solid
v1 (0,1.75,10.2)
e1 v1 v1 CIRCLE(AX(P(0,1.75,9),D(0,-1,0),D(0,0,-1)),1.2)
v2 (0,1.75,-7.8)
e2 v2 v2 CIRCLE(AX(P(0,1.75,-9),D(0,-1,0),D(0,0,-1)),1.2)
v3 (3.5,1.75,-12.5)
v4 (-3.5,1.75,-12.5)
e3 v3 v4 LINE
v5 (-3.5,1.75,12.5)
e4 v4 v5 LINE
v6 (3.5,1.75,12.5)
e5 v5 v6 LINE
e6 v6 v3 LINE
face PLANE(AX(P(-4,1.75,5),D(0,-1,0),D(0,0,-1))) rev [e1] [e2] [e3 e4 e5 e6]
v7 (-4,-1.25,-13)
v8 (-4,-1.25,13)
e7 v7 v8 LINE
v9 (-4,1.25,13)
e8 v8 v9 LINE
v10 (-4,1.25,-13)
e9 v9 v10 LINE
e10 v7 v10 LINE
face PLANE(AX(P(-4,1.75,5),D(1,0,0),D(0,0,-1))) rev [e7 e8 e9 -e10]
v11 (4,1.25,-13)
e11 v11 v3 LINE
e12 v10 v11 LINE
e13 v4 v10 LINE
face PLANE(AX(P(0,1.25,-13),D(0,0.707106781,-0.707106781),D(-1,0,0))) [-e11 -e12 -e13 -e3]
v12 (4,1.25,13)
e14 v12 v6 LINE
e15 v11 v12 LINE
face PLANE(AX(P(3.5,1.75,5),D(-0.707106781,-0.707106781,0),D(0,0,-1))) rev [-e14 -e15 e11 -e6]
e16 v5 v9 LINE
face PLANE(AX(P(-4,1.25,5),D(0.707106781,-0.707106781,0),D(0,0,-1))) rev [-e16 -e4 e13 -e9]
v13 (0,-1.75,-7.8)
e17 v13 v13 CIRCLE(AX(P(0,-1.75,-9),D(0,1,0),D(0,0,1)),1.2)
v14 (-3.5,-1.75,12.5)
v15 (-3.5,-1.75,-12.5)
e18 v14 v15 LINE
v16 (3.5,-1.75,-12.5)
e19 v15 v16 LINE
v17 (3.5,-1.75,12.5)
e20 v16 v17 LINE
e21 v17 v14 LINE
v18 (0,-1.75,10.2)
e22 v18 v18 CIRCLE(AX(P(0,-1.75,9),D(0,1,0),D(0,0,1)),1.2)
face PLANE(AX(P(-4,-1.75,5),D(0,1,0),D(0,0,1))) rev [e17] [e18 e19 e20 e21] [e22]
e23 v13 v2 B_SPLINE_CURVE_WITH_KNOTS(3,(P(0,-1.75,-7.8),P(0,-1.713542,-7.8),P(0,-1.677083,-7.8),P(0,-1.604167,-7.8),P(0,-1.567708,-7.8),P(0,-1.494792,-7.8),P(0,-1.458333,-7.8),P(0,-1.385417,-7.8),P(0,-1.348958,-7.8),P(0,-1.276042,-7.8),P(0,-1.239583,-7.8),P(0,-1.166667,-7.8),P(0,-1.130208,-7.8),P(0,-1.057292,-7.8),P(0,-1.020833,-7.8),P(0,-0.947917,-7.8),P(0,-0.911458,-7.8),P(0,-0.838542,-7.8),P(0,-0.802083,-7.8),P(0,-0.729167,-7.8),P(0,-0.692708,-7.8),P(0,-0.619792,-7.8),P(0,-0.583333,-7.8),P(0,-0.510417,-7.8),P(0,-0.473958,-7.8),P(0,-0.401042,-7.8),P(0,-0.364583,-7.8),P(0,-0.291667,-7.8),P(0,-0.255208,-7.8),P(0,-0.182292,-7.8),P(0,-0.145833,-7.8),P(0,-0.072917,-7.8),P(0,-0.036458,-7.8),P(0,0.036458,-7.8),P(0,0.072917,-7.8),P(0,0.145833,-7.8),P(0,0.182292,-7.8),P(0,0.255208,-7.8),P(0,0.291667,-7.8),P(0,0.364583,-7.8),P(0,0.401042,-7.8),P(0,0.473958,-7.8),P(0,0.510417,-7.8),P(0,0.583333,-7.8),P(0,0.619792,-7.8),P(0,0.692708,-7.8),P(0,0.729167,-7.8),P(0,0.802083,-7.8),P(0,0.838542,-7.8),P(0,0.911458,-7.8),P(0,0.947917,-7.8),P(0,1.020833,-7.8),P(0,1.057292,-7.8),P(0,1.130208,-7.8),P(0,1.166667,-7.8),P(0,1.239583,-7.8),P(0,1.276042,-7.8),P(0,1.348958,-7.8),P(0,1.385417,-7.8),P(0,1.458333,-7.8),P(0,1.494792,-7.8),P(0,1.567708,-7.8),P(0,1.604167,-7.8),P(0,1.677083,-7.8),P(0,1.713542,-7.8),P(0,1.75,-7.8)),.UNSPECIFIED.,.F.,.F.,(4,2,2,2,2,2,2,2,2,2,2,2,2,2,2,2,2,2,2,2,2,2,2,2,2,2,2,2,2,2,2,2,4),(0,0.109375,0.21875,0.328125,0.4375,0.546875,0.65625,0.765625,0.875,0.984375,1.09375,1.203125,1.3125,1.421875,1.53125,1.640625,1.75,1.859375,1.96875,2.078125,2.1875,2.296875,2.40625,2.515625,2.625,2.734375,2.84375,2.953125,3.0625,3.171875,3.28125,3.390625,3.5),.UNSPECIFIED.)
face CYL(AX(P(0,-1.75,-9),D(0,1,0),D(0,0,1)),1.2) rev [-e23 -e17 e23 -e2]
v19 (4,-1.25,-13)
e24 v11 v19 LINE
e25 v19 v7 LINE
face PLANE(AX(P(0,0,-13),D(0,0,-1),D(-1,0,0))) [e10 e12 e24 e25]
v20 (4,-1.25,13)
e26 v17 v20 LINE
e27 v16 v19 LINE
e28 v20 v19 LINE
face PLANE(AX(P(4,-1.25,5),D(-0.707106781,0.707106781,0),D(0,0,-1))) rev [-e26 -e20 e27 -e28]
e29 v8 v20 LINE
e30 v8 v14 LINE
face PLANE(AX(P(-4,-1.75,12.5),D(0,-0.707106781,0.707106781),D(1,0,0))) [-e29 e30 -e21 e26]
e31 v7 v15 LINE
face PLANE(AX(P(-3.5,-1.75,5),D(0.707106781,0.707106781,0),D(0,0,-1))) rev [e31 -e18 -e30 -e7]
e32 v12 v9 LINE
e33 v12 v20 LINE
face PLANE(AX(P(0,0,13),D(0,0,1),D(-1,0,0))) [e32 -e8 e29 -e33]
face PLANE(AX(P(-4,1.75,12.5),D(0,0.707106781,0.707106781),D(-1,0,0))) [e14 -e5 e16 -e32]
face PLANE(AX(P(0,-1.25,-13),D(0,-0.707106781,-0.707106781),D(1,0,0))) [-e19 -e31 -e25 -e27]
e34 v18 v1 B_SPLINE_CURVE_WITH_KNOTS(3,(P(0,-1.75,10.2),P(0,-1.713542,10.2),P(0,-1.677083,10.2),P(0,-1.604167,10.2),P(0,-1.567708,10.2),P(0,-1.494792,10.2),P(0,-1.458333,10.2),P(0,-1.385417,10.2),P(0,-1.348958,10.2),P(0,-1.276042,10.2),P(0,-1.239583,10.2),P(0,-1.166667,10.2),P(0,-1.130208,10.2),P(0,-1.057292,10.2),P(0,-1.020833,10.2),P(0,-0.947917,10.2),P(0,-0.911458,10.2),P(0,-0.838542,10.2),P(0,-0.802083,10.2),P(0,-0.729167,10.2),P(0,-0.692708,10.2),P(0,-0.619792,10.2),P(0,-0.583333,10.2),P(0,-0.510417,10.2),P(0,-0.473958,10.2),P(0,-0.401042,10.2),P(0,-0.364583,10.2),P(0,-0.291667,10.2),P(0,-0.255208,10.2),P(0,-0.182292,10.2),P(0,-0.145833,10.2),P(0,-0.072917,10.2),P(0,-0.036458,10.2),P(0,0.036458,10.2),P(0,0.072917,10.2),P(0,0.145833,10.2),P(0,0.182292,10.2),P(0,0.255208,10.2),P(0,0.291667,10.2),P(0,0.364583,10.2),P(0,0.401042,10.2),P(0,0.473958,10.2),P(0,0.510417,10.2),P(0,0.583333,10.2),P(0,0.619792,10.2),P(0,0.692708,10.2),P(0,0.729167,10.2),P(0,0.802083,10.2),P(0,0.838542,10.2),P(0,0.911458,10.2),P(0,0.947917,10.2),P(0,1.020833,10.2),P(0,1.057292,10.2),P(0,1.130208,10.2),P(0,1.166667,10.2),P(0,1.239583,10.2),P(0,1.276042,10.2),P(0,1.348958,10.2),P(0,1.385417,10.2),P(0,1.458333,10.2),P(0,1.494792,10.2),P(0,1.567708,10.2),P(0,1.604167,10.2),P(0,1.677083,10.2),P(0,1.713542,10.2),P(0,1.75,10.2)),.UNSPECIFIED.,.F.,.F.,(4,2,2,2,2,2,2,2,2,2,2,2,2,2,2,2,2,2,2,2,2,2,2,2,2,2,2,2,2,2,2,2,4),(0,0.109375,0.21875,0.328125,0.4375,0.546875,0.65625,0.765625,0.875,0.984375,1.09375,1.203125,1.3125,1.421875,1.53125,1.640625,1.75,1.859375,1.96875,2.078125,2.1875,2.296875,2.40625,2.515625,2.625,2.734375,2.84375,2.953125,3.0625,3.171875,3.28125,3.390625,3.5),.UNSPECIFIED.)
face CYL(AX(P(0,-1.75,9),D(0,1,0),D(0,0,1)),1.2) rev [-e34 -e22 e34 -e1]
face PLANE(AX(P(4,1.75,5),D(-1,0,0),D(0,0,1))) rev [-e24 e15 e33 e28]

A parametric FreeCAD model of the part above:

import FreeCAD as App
import Part
import Sketcher
from FreeCAD import Vector
Q = App.Units.Quantity


def edges_at(feature, points):
    """Names of the edges that pass closest to the given points."""
    edges = feature.Shape.Edges
    near = lambda p: min(range(len(edges)), key=lambda i: edges[i].distToShape(Part.Vertex(*p))[0])
    return sorted({f"Edge{near(p) + 1}" for p in points})


def add_polygon(sketch, points):
    """Adds a closed chain of lines whose ends are joined by coincident constraints."""
    first, n = sketch.GeometryCount, len(points)
    for a, b in zip(points, points[1:] + points[:1]):
        sketch.addGeometry(Part.LineSegment(App.Vector(*a, 0), App.Vector(*b, 0)), False)
    for i in range(n):
        sketch.addConstraint(Sketcher.Constraint("Coincident", first + i, 2, first + (i + 1) % n, 1))

doc = App.newDocument("Part")
params = doc.addObject("Spreadsheet::Sheet", "Params")
for row, (alias, value) in enumerate([
    ("sketch1_width", "8 mm"),
    ("sketch1_height", "3.5 mm"),
    ("pad1_length", "10 mm"),
    ("sketch2_width", "8 mm"),
    ("sketch2_height", "3.5 mm"),
    ("pad2_length", "8 mm"),
    ("chamfer_size", "0.5 mm"),
    ("sketch3_diameter", "2.4 mm"),
], start=1):
    params.set(f"A{row}", alias)
    params.set(f"B{row}", "=" + value)
    params.setAlias(f"B{row}", alias)

body = doc.addObject("PartDesign::Body", "Body")

sketch1 = body.newObject("Sketcher::SketchObject", "Sketch")
sketch1.AttachmentSupport = (doc.getObject("XY_Plane"), [""])
sketch1.MapMode = "FlatFace"
add_polygon(sketch1, [(-4, 1.8), (-4, -1.8), (4, -1.8), (4, 1.8)])
sketch1.addConstraint(Sketcher.Constraint("Vertical", 0))
sketch1.addConstraint(Sketcher.Constraint("Horizontal", 1))
sketch1.addConstraint(Sketcher.Constraint("Vertical", 2))
sketch1.addConstraint(Sketcher.Constraint("Horizontal", 3))
sketch1.addConstraint(Sketcher.Constraint("Symmetric", 0, 2, 2, 2, -1, 1))
sketch1.addConstraint(Sketcher.Constraint("DistanceX", 1, 1, 1, 2, Q("8 mm")))
sketch1.addConstraint(Sketcher.Constraint("DistanceY", 0, 2, 0, 1, Q("3.5 mm")))
sketch1.setExpression("Constraints[9]", "Params.sketch1_width")
sketch1.setExpression("Constraints[10]", "Params.sketch1_height")
pad1 = body.newObject("PartDesign::Pad", "Pad")
pad1.Profile = sketch1
pad1.setExpression("Length", "Params.pad1_length")
pad1.Midplane = True

sketch2 = body.newObject("Sketcher::SketchObject", "Sketch001")
sketch2.AttachmentSupport = (doc.getObject("XY_Plane"), [""])
sketch2.MapMode = "FlatFace"
sketch2.AttachmentOffset = App.Placement(Vector(0, 0, -5), App.Rotation())
add_polygon(sketch2, [(4, 1.8), (4, -1.8), (-4, -1.8), (-4, 1.8)])
sketch2.addConstraint(Sketcher.Constraint("Vertical", 0))
sketch2.addConstraint(Sketcher.Constraint("Horizontal", 1))
sketch2.addConstraint(Sketcher.Constraint("Vertical", 2))
sketch2.addConstraint(Sketcher.Constraint("Horizontal", 3))
sketch2.addConstraint(Sketcher.Constraint("Symmetric", 0, 2, 2, 2, -1, 1))
sketch2.addConstraint(Sketcher.Constraint("DistanceX", 1, 2, 1, 1, Q("8 mm")))
sketch2.addConstraint(Sketcher.Constraint("DistanceY", 0, 2, 0, 1, Q("3.5 mm")))
sketch2.setExpression("Constraints[9]", "Params.sketch2_width")
sketch2.setExpression("Constraints[10]", "Params.sketch2_height")
pad2 = body.newObject("PartDesign::Pad", "Pad001")
pad2.Profile = sketch2
pad2.setExpression("Length", "Params.pad2_length")
pad2.Reversed = True
doc.recompute()

mirrored = body.newObject("PartDesign::Mirrored", "Mirrored")
mirrored.Originals = [pad2]
mirrored.MirrorPlane = (doc.getObject("XY_Plane"), [""])
body.Tip = mirrored
doc.recompute()

chamfer = body.newObject("PartDesign::Chamfer", "Chamfer")
chamfer.Base = (mirrored, edges_at(mirrored, [
    (0, 1.75, -13),
    (0, -1.75, -13),
    (0, -1.75, 13),
    (0, 1.75, 13),
    (4, -1.75, 0),
    (-4, -1.75, 0),
    (-4, 1.75, 0),
    (4, 1.75, 0),
]))
chamfer.setExpression("Size", "Params.chamfer_size")

sketch3 = body.newObject("Sketcher::SketchObject", "Sketch002")
sketch3.AttachmentSupport = (doc.getObject("XZ_Plane"), [""])
sketch3.MapMode = "FlatFace"
sketch3.AttachmentOffset = App.Placement(Vector(0, 0, -1.75), App.Rotation())
sketch3.addGeometry(Part.Circle(Vector(0, 9, 0), Vector(0, 0, 1), 1.2), False)
sketch3.addGeometry(Part.Circle(Vector(0, -9, 0), Vector(0, 0, 1), 1.2), False)
sketch3.addConstraint(Sketcher.Constraint("Equal", 0, 1))
sketch3.addConstraint(Sketcher.Constraint("Symmetric", 0, 3, 1, 3, -1, 1))
sketch3.addConstraint(Sketcher.Constraint("PointOnObject", 0, 3, -2))
sketch3.addConstraint(Sketcher.Constraint("Diameter", 0, Q("2.4 mm")))
sketch3.addConstraint(Sketcher.Constraint("DistanceY", -1, 1, 0, 3, Q("9 mm")))
sketch3.setExpression("Constraints[3]", "Params.sketch3_diameter")
pocket1 = body.newObject("PartDesign::Pocket", "Pocket")
pocket1.Profile = sketch3
pocket1.Type = "ThroughAll"
pocket1.Midplane = True

doc.recompute()
